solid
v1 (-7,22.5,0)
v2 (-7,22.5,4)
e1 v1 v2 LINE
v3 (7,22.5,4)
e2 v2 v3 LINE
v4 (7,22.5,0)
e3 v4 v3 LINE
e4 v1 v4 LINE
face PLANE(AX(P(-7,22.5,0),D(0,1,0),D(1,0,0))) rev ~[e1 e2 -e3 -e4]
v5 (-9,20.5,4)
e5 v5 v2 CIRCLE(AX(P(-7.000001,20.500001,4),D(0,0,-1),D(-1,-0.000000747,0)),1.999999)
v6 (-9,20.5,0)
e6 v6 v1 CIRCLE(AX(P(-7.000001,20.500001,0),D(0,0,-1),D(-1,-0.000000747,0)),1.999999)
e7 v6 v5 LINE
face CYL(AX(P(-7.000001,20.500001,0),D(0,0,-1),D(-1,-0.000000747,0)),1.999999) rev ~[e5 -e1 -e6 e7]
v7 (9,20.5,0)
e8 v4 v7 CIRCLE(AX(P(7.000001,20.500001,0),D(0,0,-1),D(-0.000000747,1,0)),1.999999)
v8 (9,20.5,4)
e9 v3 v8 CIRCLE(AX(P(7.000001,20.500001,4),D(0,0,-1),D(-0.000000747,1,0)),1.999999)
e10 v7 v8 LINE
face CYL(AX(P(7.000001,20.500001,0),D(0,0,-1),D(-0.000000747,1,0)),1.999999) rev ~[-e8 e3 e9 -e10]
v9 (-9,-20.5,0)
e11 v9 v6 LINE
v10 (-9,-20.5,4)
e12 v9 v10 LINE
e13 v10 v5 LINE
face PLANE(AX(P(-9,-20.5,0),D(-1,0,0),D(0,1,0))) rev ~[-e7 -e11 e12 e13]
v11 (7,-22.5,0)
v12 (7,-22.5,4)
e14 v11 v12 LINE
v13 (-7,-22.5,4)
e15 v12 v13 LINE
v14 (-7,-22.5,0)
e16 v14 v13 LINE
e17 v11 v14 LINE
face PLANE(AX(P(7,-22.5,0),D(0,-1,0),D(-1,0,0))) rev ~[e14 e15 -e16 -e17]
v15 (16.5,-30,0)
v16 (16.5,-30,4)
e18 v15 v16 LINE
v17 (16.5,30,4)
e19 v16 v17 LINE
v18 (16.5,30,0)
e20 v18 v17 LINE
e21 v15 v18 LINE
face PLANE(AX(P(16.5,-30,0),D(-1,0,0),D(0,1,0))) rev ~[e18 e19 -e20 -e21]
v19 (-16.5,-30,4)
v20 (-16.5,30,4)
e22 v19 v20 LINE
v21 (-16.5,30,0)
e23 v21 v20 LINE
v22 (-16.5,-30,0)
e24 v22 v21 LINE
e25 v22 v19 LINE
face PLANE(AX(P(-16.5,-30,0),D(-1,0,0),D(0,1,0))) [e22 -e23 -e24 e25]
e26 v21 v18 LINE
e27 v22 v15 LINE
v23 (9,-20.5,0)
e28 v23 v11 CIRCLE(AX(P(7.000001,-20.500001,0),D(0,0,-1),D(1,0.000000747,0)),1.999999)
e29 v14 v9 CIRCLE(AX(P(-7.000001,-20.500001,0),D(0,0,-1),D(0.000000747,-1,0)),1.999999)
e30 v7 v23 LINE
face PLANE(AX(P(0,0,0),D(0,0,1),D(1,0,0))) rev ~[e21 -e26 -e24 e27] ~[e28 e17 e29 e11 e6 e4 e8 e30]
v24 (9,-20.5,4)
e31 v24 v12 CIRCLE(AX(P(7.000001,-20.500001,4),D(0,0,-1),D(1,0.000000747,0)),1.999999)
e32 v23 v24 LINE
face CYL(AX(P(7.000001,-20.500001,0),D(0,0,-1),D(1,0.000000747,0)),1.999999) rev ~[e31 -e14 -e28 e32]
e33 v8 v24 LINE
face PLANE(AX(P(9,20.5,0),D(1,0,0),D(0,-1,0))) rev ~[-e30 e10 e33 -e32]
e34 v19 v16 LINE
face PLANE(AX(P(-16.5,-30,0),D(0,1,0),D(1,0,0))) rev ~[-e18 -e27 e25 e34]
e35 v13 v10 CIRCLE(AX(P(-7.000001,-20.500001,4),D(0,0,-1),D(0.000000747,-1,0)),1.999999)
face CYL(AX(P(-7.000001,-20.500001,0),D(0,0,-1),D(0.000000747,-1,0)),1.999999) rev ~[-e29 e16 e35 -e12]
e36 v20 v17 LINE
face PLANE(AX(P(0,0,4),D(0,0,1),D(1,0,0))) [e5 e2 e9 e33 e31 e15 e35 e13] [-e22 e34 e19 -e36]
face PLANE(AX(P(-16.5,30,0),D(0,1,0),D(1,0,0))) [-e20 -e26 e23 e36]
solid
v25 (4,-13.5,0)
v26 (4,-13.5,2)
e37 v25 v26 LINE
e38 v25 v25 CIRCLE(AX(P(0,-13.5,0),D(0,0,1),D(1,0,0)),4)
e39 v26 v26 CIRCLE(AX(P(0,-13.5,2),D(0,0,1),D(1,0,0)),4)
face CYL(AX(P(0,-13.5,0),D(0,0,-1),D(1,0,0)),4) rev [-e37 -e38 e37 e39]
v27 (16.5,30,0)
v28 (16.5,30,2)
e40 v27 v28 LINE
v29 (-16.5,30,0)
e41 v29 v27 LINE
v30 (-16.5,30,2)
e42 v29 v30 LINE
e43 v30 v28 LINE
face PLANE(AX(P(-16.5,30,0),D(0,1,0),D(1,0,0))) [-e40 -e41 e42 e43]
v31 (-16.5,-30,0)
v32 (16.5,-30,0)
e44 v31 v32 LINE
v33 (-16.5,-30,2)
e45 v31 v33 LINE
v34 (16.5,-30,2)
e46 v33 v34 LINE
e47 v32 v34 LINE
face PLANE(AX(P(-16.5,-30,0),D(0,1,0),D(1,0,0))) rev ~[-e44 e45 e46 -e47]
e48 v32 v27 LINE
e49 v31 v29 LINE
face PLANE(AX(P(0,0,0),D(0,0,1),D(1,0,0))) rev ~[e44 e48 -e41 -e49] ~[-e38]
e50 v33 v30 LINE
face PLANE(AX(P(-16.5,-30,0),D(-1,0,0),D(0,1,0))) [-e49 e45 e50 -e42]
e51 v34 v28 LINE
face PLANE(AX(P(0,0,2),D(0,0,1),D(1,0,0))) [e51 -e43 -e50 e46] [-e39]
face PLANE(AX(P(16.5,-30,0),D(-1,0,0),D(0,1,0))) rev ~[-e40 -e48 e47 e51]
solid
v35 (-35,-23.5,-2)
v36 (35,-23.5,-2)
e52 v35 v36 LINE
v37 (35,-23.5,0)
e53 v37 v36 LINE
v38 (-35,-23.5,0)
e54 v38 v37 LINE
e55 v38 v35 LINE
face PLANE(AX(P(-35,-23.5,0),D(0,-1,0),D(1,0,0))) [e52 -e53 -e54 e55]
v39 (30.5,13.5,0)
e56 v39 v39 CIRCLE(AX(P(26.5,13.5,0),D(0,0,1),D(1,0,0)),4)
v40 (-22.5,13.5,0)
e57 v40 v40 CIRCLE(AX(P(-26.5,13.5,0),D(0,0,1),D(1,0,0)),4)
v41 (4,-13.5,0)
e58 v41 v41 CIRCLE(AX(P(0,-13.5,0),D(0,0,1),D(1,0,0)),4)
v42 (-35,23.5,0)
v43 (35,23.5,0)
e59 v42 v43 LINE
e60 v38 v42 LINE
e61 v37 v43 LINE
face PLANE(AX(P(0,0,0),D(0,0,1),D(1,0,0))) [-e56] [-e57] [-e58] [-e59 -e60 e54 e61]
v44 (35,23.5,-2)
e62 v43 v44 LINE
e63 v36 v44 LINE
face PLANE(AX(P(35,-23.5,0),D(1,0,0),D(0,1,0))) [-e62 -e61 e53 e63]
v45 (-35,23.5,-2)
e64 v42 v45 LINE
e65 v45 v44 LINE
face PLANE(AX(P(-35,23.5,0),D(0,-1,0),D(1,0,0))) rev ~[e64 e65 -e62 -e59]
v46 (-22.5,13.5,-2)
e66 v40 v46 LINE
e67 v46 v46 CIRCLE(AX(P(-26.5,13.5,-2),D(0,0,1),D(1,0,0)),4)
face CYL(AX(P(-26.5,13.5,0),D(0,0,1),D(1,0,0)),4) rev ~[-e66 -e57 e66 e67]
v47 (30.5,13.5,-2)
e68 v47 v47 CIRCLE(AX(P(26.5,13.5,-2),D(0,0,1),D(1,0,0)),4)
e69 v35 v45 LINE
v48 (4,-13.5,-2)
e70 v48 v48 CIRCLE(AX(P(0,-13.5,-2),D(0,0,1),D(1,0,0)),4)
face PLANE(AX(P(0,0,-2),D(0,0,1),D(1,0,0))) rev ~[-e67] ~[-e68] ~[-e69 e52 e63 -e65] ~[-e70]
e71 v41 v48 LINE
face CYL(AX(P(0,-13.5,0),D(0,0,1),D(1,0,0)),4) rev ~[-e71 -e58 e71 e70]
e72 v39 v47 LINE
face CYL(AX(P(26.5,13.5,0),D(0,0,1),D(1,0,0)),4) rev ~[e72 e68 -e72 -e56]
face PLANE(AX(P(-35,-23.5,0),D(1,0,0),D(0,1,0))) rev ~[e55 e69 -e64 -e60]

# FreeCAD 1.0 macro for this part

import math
import FreeCAD as App
import Part
import Sketcher
from FreeCAD import Vector


def add_polygon(sketch, points):
    """Adds a closed chain of lines whose ends are joined by coincident constraints."""
    first, n = sketch.GeometryCount, len(points)
    for a, b in zip(points, points[1:] + points[:1]):
        sketch.addGeometry(Part.LineSegment(App.Vector(*a, 0), App.Vector(*b, 0)), False)
    for i in range(n):
        sketch.addConstraint(Sketcher.Constraint("Coincident", first + i, 2, first + (i + 1) % n, 1))

doc = App.newDocument("Part")
params = doc.addObject("Spreadsheet::Sheet", "Params")
for row, (alias, value) in enumerate([
    ("sketch1_diameter", "8 mm"),
    ("sketch1_width", "70 mm"),
    ("sketch1_height", "47 mm"),
    ("pad1_length", "2 mm"),
    ("sketch2_diameter", "8 mm"),
    ("sketch2_width", "33 mm"),
    ("sketch2_height", "60 mm"),
    ("pad2_length", "2 mm"),
    ("sketch3_radius", "1.999999 mm"),
    ("sketch3_width", "33 mm"),
    ("sketch3_width2", "14 mm"),
    ("sketch3_height", "60 mm"),
    ("sketch3_height2", "41 mm"),
    ("pad3_length", "4 mm"),
], start=1):
    params.set(f"A{row}", alias)
    params.set(f"B{row}", "=" + value)
    params.setAlias(f"B{row}", alias)

body = doc.addObject("PartDesign::Body", "Body")

# Sketch on XY plane
sketch1 = body.newObject("Sketcher::SketchObject", "Sketch")
sketch1.AttachmentSupport = (doc.getObject("XY_Plane"), [""])
sketch1.MapMode = "FlatFace"
add_polygon(sketch1, [(-35, 23.5), (-35, -23.5), (35, -23.5), (35, 23.5)])  # lines 0-3
sketch1.addGeometry(Part.Circle(Vector(0, -13.5, 0), Vector(0, 0, 1), 4), False)  # 4
sketch1.addGeometry(Part.Circle(Vector(-26.5, 13.5, 0), Vector(0, 0, 1), 4), False)  # 5
sketch1.addGeometry(Part.Circle(Vector(26.5, 13.5, 0), Vector(0, 0, 1), 4), False)  # 6
sketch1.addConstraint(Sketcher.Constraint("Vertical", 0))
sketch1.addConstraint(Sketcher.Constraint("Horizontal", 1))
sketch1.addConstraint(Sketcher.Constraint("Vertical", 2))
sketch1.addConstraint(Sketcher.Constraint("Horizontal", 3))
sketch1.addConstraint(Sketcher.Constraint("Equal", 4, 5))
sketch1.addConstraint(Sketcher.Constraint("Equal", 5, 6))
sketch1.addConstraint(Sketcher.Constraint("Symmetric", 0, 2, 2, 2, -1, 1))
sketch1.addConstraint(Sketcher.Constraint("Symmetric", 5, 3, 6, 3, -2))
sketch1.addConstraint(Sketcher.Constraint("PointOnObject", 4, 3, -2))
sketch1.addConstraint(Sketcher.Constraint("Diameter", 4, 8.0))
sketch1.addConstraint(Sketcher.Constraint("DistanceX", 1, 1, 1, 2, 70.0))
sketch1.addConstraint(Sketcher.Constraint("DistanceY", 0, 2, 0, 1, 47.0))
sketch1.addConstraint(Sketcher.Constraint("DistanceY", 4, 3, 5, 3, 27.0))
sketch1.addConstraint(Sketcher.Constraint("DistanceX", 5, 3, 6, 3, 53.0))
sketch1.addConstraint(Sketcher.Constraint("DistanceY", 0, 2, 4, 3, 10.0))
sketch1.setExpression("Constraints[13]", "Params.sketch1_diameter")
sketch1.setExpression("Constraints[14]", "Params.sketch1_width")
sketch1.setExpression("Constraints[15]", "Params.sketch1_height")
pad1 = body.newObject("PartDesign::Pad", "Pad")
pad1.Profile = sketch1
pad1.setExpression("Length", "Params.pad1_length")
pad1.Reversed = True
body2 = doc.addObject("PartDesign::Body", "Body001")

# Sketch on XY plane
sketch2 = body2.newObject("Sketcher::SketchObject", "Sketch001")
sketch2.AttachmentSupport = (doc.getObject("XY_Plane001"), [""])
sketch2.MapMode = "FlatFace"
add_polygon(sketch2, [(-16.5, 30), (-16.5, -30), (16.5, -30), (16.5, 30)])  # lines 0-3
sketch2.addGeometry(Part.Circle(Vector(0, -13.5, 0), Vector(0, 0, 1), 4), False)  # 4
sketch2.addConstraint(Sketcher.Constraint("Vertical", 0))
sketch2.addConstraint(Sketcher.Constraint("Horizontal", 1))
sketch2.addConstraint(Sketcher.Constraint("Vertical", 2))
sketch2.addConstraint(Sketcher.Constraint("Horizontal", 3))
sketch2.addConstraint(Sketcher.Constraint("Symmetric", 0, 2, 2, 2, -1, 1))
sketch2.addConstraint(Sketcher.Constraint("PointOnObject", 4, 3, -2))
sketch2.addConstraint(Sketcher.Constraint("Diameter", 4, 8.0))
sketch2.addConstraint(Sketcher.Constraint("DistanceX", 1, 1, 1, 2, 33.0))
sketch2.addConstraint(Sketcher.Constraint("DistanceY", 0, 2, 0, 1, 60.0))
sketch2.addConstraint(Sketcher.Constraint("DistanceY", 4, 3, -1, 1, 13.5))
sketch2.setExpression("Constraints[10]", "Params.sketch2_diameter")
sketch2.setExpression("Constraints[11]", "Params.sketch2_width")
sketch2.setExpression("Constraints[12]", "Params.sketch2_height")
pad2 = body2.newObject("PartDesign::Pad", "Pad001")
pad2.Profile = sketch2
pad2.setExpression("Length", "Params.pad2_length")
body3 = doc.addObject("PartDesign::Body", "Body002")

# Sketch on XY plane
sketch3 = body3.newObject("Sketcher::SketchObject", "Sketch002")
sketch3.AttachmentSupport = (doc.getObject("XY_Plane002"), [""])
sketch3.MapMode = "FlatFace"
add_polygon(sketch3, [(-16.5, 30), (-16.5, -30), (16.5, -30), (16.5, 30)])  # lines 0-3
sketch3.addGeometry(Part.LineSegment(Vector(9, 20.5, 0), Vector(9, -20.5, 0)), False)  # 4
sketch3.addGeometry(Part.ArcOfCircle(Part.Circle(Vector(7, -20.5, 0), Vector(0, 0, 1), 2), math.radians(-90), math.radians(0)), False)  # 5
sketch3.addGeometry(Part.LineSegment(Vector(7, -22.5, 0), Vector(-7, -22.5, 0)), False)  # 6
sketch3.addGeometry(Part.ArcOfCircle(Part.Circle(Vector(-7, -20.5, 0), Vector(0, 0, 1), 2), math.radians(180), math.radians(270)), False)  # 7
sketch3.addGeometry(Part.LineSegment(Vector(-9, -20.5, 0), Vector(-9, 20.5, 0)), False)  # 8
sketch3.addGeometry(Part.ArcOfCircle(Part.Circle(Vector(-7, 20.5, 0), Vector(0, 0, 1), 2), math.radians(90), math.radians(180)), False)  # 9
sketch3.addGeometry(Part.LineSegment(Vector(-7, 22.5, 0), Vector(7, 22.5, 0)), False)  # 10
sketch3.addGeometry(Part.ArcOfCircle(Part.Circle(Vector(7, 20.5, 0), Vector(0, 0, 1), 2), math.radians(0), math.radians(90)), False)  # 11
sketch3.addConstraint(Sketcher.Constraint("Tangent", 4, 2, 5, 2))
sketch3.addConstraint(Sketcher.Constraint("Tangent", 5, 1, 6, 1))
sketch3.addConstraint(Sketcher.Constraint("Tangent", 6, 2, 7, 2))
sketch3.addConstraint(Sketcher.Constraint("Tangent", 7, 1, 8, 1))
sketch3.addConstraint(Sketcher.Constraint("Tangent", 8, 2, 9, 2))
sketch3.addConstraint(Sketcher.Constraint("Tangent", 9, 1, 10, 1))
sketch3.addConstraint(Sketcher.Constraint("Tangent", 10, 2, 11, 2))
sketch3.addConstraint(Sketcher.Constraint("Tangent", 11, 1, 4, 1))
sketch3.addConstraint(Sketcher.Constraint("Vertical", 0))
sketch3.addConstraint(Sketcher.Constraint("Horizontal", 1))
sketch3.addConstraint(Sketcher.Constraint("Vertical", 2))
sketch3.addConstraint(Sketcher.Constraint("Horizontal", 3))
sketch3.addConstraint(Sketcher.Constraint("Vertical", 4))
sketch3.addConstraint(Sketcher.Constraint("Horizontal", 6))
sketch3.addConstraint(Sketcher.Constraint("Vertical", 8))
sketch3.addConstraint(Sketcher.Constraint("Horizontal", 10))
sketch3.addConstraint(Sketcher.Constraint("Equal", 5, 7))
sketch3.addConstraint(Sketcher.Constraint("Equal", 7, 9))
sketch3.addConstraint(Sketcher.Constraint("Equal", 9, 11))
sketch3.addConstraint(Sketcher.Constraint("Symmetric", 5, 3, 9, 3, -1, 1))
sketch3.addConstraint(Sketcher.Constraint("Symmetric", 0, 2, 2, 2, -1, 1))
sketch3.addConstraint(Sketcher.Constraint("Radius", 5, 1.999999))
sketch3.addConstraint(Sketcher.Constraint("DistanceX", 1, 1, 1, 2, 33.0))
sketch3.addConstraint(Sketcher.Constraint("DistanceX", 6, 2, 6, 1, 14.0))
sketch3.addConstraint(Sketcher.Constraint("DistanceY", 0, 2, 0, 1, 60.0))
sketch3.addConstraint(Sketcher.Constraint("DistanceY", 4, 2, 4, 1, 41.0))
sketch3.setExpression("Constraints[25]", "Params.sketch3_radius")
sketch3.setExpression("Constraints[26]", "Params.sketch3_width")
sketch3.setExpression("Constraints[27]", "Params.sketch3_width2")
sketch3.setExpression("Constraints[28]", "Params.sketch3_height")
sketch3.setExpression("Constraints[29]", "Params.sketch3_height2")
pad3 = body3.newObject("PartDesign::Pad", "Pad002")
pad3.Profile = sketch3
pad3.setExpression("Length", "Params.pad3_length")

doc.recompute()
